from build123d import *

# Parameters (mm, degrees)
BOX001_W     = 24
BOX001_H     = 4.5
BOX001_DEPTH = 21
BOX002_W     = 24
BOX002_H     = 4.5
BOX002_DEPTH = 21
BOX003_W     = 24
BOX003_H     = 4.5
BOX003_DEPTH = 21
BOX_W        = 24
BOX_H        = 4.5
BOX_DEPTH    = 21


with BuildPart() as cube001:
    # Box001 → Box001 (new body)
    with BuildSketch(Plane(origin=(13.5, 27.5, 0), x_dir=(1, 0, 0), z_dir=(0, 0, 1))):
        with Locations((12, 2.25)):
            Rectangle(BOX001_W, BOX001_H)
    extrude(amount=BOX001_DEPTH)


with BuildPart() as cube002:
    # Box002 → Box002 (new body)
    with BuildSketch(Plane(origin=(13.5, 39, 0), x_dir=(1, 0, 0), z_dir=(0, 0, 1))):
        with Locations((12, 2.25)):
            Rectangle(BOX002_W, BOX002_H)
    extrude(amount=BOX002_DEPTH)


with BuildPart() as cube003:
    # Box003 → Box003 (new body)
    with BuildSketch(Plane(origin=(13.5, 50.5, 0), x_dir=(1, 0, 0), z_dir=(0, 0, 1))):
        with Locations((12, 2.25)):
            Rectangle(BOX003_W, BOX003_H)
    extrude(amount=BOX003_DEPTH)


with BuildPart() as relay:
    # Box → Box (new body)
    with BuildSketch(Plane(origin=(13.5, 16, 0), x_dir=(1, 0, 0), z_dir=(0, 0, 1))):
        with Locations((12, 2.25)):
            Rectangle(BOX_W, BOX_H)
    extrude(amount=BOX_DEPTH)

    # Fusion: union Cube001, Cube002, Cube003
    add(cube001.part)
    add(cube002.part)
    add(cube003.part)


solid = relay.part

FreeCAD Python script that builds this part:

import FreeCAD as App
import Part
import Sketcher
from FreeCAD import Vector


def add_polygon(sketch, points):
    """Adds a closed chain of lines whose ends are joined by coincident constraints."""
    first, n = sketch.GeometryCount, len(points)
    for a, b in zip(points, points[1:] + points[:1]):
        sketch.addGeometry(Part.LineSegment(App.Vector(*a, 0), App.Vector(*b, 0)), False)
    for i in range(n):
        sketch.addConstraint(Sketcher.Constraint("Coincident", first + i, 2, first + (i + 1) % n, 1))

doc = App.newDocument("Part")
params = doc.addObject("Spreadsheet::Sheet", "Params")
for row, (alias, value) in enumerate([
    ("sketch1_width", "24 mm"),
    ("sketch1_height", "4.5 mm"),
    ("pad1_length", "21 mm"),
    ("sketch2_width", "24 mm"),
    ("sketch2_height", "4.5 mm"),
    ("pad2_length", "21 mm"),
    ("sketch3_width", "24 mm"),
    ("sketch3_height", "4.5 mm"),
    ("pad3_length", "21 mm"),
    ("sketch4_width", "24 mm"),
    ("sketch4_height", "4.5 mm"),
    ("pad4_length", "21 mm"),
], start=1):
    params.set(f"A{row}", alias)
    params.set(f"B{row}", "=" + value)
    params.setAlias(f"B{row}", alias)

body = doc.addObject("PartDesign::Body", "Body")

sketch1 = body.newObject("Sketcher::SketchObject", "Sketch")
sketch1.AttachmentSupport = (doc.getObject("XY_Plane"), [""])
sketch1.MapMode = "FlatFace"
add_polygon(sketch1, [(13.5, 32), (13.5, 27.5), (37.5, 27.5), (37.5, 32)])
sketch1.addConstraint([
    Sketcher.Constraint("Vertical", 0),
    Sketcher.Constraint("Horizontal", 1),
    Sketcher.Constraint("Vertical", 2),
    Sketcher.Constraint("Horizontal", 3),
    Sketcher.Constraint("DistanceX", 1, 1, 1, 2, 24.0),
    Sketcher.Constraint("DistanceY", 0, 2, 0, 1, 4.5),
    Sketcher.Constraint("DistanceY", -1, 1, 2, 2, 32.0),
    Sketcher.Constraint("DistanceX", -1, 1, 0, 2, 13.5),
])
sketch1.setExpression("Constraints[8]", "Params.sketch1_width")
sketch1.setExpression("Constraints[9]", "Params.sketch1_height")
pad1 = body.newObject("PartDesign::Pad", "Pad")
pad1.Profile = sketch1
pad1.setExpression("Length", "Params.pad1_length")
body2 = doc.addObject("PartDesign::Body", "Body001")

sketch2 = body2.newObject("Sketcher::SketchObject", "Sketch001")
sketch2.AttachmentSupport = (doc.getObject("XY_Plane001"), [""])
sketch2.MapMode = "FlatFace"
add_polygon(sketch2, [(13.5, 43.5), (13.5, 39), (37.5, 39), (37.5, 43.5)])
sketch2.addConstraint([
    Sketcher.Constraint("Vertical", 0),
    Sketcher.Constraint("Horizontal", 1),
    Sketcher.Constraint("Vertical", 2),
    Sketcher.Constraint("Horizontal", 3),
    Sketcher.Constraint("DistanceX", 1, 1, 1, 2, 24.0),
    Sketcher.Constraint("DistanceY", 0, 2, 0, 1, 4.5),
    Sketcher.Constraint("DistanceY", -1, 1, 0, 2, 39.0),
    Sketcher.Constraint("DistanceX", -1, 1, 0, 2, 13.5),
])
sketch2.setExpression("Constraints[8]", "Params.sketch2_width")
sketch2.setExpression("Constraints[9]", "Params.sketch2_height")
pad2 = body2.newObject("PartDesign::Pad", "Pad001")
pad2.Profile = sketch2
pad2.setExpression("Length", "Params.pad2_length")
body3 = doc.addObject("PartDesign::Body", "Body002")

sketch3 = body3.newObject("Sketcher::SketchObject", "Sketch002")
sketch3.AttachmentSupport = (doc.getObject("XY_Plane002"), [""])
sketch3.MapMode = "FlatFace"
add_polygon(sketch3, [(13.5, 55), (13.5, 50.5), (37.5, 50.5), (37.5, 55)])
sketch3.addConstraint([
    Sketcher.Constraint("Vertical", 0),
    Sketcher.Constraint("Horizontal", 1),
    Sketcher.Constraint("Vertical", 2),
    Sketcher.Constraint("Horizontal", 3),
    Sketcher.Constraint("DistanceX", 1, 1, 1, 2, 24.0),
    Sketcher.Constraint("DistanceY", 0, 2, 0, 1, 4.5),
    Sketcher.Constraint("DistanceY", -1, 1, 2, 2, 55.0),
    Sketcher.Constraint("DistanceX", -1, 1, 0, 2, 13.5),
])
sketch3.setExpression("Constraints[8]", "Params.sketch3_width")
sketch3.setExpression("Constraints[9]", "Params.sketch3_height")
pad3 = body3.newObject("PartDesign::Pad", "Pad002")
pad3.Profile = sketch3
pad3.setExpression("Length", "Params.pad3_length")
body4 = doc.addObject("PartDesign::Body", "Body003")
body4.AllowCompound = True

sketch4 = body4.newObject("Sketcher::SketchObject", "Sketch003")
sketch4.AttachmentSupport = (doc.getObject("XY_Plane003"), [""])
sketch4.MapMode = "FlatFace"
add_polygon(sketch4, [(13.5, 20.5), (13.5, 16), (37.5, 16), (37.5, 20.5)])
sketch4.addConstraint([
    Sketcher.Constraint("Vertical", 0),
    Sketcher.Constraint("Horizontal", 1),
    Sketcher.Constraint("Vertical", 2),
    Sketcher.Constraint("Horizontal", 3),
    Sketcher.Constraint("DistanceX", 1, 1, 1, 2, 24.0),
    Sketcher.Constraint("DistanceY", 0, 2, 0, 1, 4.5),
    Sketcher.Constraint("DistanceY", -1, 1, 0, 2, 16.0),
    Sketcher.Constraint("DistanceX", -1, 1, 0, 2, 13.5),
])
sketch4.setExpression("Constraints[8]", "Params.sketch4_width")
sketch4.setExpression("Constraints[9]", "Params.sketch4_height")
pad4 = body4.newObject("PartDesign::Pad", "Pad003")
pad4.Profile = sketch4
pad4.setExpression("Length", "Params.pad4_length")
doc.recompute()

boolean = body4.newObject("PartDesign::Boolean", "Boolean")
boolean.Type = "Fuse"
boolean.addObjects([body])
doc.recompute()

boolean2 = body4.newObject("PartDesign::Boolean", "Boolean001")
boolean2.Type = "Fuse"
boolean2.addObjects([body2])
doc.recompute()

boolean3 = body4.newObject("PartDesign::Boolean", "Boolean002")
boolean3.Type = "Fuse"
boolean3.addObjects([body3])

doc.recompute()
